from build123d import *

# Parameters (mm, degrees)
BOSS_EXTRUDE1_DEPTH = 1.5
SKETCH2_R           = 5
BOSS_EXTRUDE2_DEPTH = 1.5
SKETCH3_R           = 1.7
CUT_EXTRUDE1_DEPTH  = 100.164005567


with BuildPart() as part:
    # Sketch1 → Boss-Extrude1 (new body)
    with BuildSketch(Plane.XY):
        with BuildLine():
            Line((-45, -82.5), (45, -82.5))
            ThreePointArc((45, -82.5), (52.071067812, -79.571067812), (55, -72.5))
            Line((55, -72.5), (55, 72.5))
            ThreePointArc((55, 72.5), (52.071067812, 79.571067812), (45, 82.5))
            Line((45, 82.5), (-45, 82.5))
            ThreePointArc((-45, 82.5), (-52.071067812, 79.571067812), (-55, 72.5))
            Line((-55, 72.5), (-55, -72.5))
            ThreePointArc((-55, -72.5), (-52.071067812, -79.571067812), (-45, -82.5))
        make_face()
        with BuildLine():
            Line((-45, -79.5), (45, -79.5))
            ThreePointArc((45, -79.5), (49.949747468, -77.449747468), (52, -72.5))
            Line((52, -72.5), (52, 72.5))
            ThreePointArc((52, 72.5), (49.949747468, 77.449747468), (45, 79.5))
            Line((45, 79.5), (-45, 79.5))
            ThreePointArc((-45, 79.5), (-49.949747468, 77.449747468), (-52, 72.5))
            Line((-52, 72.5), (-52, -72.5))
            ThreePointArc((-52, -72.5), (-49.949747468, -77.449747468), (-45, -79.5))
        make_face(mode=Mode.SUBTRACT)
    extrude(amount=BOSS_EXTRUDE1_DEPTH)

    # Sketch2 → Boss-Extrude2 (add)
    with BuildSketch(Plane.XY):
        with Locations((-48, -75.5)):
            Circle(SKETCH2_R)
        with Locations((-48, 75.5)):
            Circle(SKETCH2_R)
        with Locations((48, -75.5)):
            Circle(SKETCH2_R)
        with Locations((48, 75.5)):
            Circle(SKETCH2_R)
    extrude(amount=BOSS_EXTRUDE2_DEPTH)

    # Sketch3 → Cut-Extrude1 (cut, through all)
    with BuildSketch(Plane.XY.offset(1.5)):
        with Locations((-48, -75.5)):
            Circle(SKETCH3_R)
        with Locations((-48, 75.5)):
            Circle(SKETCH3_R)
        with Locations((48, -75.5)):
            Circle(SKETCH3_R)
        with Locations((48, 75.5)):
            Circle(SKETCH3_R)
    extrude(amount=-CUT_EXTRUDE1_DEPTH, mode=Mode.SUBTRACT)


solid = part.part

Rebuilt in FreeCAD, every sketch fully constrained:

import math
import FreeCAD as App
import Part
import Sketcher

V = App.Vector
Q = App.Units.Quantity

doc = App.newDocument("Part")
body = doc.addObject("PartDesign::Body", "Body")

# Sketch on XY plane
sketch1 = doc.addObject("Sketcher::SketchObject", "Sketch")
body.addObject(sketch1)
sketch1.AttachmentSupport = (doc.XY_Plane, [""])
sketch1.MapMode = "FlatFace"
sketch1.addGeometry([
    Part.LineSegment(V(-45, -82.5, 0), V(45, -82.5, 0)),  # 0
    Part.ArcOfCircle(Part.Circle(V(45, -72.5, 0), V(0, 0, 1), 10), math.radians(-90), math.radians(0)),  # 1
    Part.LineSegment(V(55, -72.5, 0), V(55, 72.5, 0)),  # 2
    Part.ArcOfCircle(Part.Circle(V(45, 72.5, 0), V(0, 0, 1), 10), math.radians(0), math.radians(90)),  # 3
    Part.LineSegment(V(45, 82.5, 0), V(-45, 82.5, 0)),  # 4
    Part.ArcOfCircle(Part.Circle(V(-45, 72.5, 0), V(0, 0, 1), 10), math.radians(90), math.radians(180)),  # 5
    Part.LineSegment(V(-55, 72.5, 0), V(-55, -72.5, 0)),  # 6
    Part.ArcOfCircle(Part.Circle(V(-45, -72.5, 0), V(0, 0, 1), 10), math.radians(180), math.radians(270)),  # 7
    Part.LineSegment(V(45, -79.5, 0), V(-45, -79.5, 0)),  # 8
    Part.ArcOfCircle(Part.Circle(V(-45, -72.5, 0), V(0, 0, 1), 7), math.radians(-180), math.radians(-90)),  # 9
    Part.LineSegment(V(-52, -72.5, 0), V(-52, 72.5, 0)),  # 10
    Part.ArcOfCircle(Part.Circle(V(-45, 72.5, 0), V(0, 0, 1), 7), math.radians(90), math.radians(180)),  # 11
    Part.LineSegment(V(-45, 79.5, 0), V(45, 79.5, 0)),  # 12
    Part.ArcOfCircle(Part.Circle(V(45, 72.5, 0), V(0, 0, 1), 7), math.radians(0), math.radians(90)),  # 13
    Part.LineSegment(V(52, 72.5, 0), V(52, -72.5, 0)),  # 14
    Part.ArcOfCircle(Part.Circle(V(45, -72.5, 0), V(0, 0, 1), 7), math.radians(-90), math.radians(0)),  # 15
], False)
sketch1.addConstraint([
    Sketcher.Constraint("Tangent", 0, 2, 1, 1),
    Sketcher.Constraint("Tangent", 1, 2, 2, 1),
    Sketcher.Constraint("Tangent", 2, 2, 3, 1),
    Sketcher.Constraint("Tangent", 3, 2, 4, 1),
    Sketcher.Constraint("Tangent", 4, 2, 5, 1),
    Sketcher.Constraint("Tangent", 5, 2, 6, 1),
    Sketcher.Constraint("Tangent", 6, 2, 7, 1),
    Sketcher.Constraint("Tangent", 7, 2, 0, 1),
    Sketcher.Constraint("Tangent", 8, 2, 9, 2),
    Sketcher.Constraint("Tangent", 9, 1, 10, 1),
    Sketcher.Constraint("Tangent", 10, 2, 11, 2),
    Sketcher.Constraint("Tangent", 11, 1, 12, 1),
    Sketcher.Constraint("Tangent", 12, 2, 13, 2),
    Sketcher.Constraint("Tangent", 13, 1, 14, 1),
    Sketcher.Constraint("Tangent", 14, 2, 15, 2),
    Sketcher.Constraint("Tangent", 15, 1, 8, 1),
    Sketcher.Constraint("Horizontal", 0),
    Sketcher.Constraint("Vertical", 2),
    Sketcher.Constraint("Horizontal", 4),
    Sketcher.Constraint("Vertical", 6),
    Sketcher.Constraint("Horizontal", 8),
    Sketcher.Constraint("Vertical", 10),
    Sketcher.Constraint("Horizontal", 12),
    Sketcher.Constraint("Vertical", 14),
    Sketcher.Constraint("Coincident", 9, 3, 7, 3),
    Sketcher.Constraint("Coincident", 11, 3, 5, 3),
    Sketcher.Constraint("Coincident", 13, 3, 3, 3),
    Sketcher.Constraint("Equal", 1, 3),
    Sketcher.Constraint("Equal", 3, 5),
    Sketcher.Constraint("Equal", 5, 7),
    Sketcher.Constraint("Equal", 13, 15),
    Sketcher.Constraint("Symmetric", 1, 3, 5, 3, -1, 1),
    Sketcher.Constraint("Radius", 1, Q("10 mm")),
    Sketcher.Constraint("Radius", 9, Q("7 mm")),
    Sketcher.Constraint("DistanceX", 0, 1, 0, 2, Q("90 mm")),
    Sketcher.Constraint("DistanceY", 2, 1, 2, 2, Q("145 mm")),
])
pad1 = doc.addObject("PartDesign::Pad", "Pad")
body.addObject(pad1)
pad1.Profile = sketch1
pad1.Length = 1.5

# Sketch on XY plane
sketch2 = doc.addObject("Sketcher::SketchObject", "Sketch001")
body.addObject(sketch2)
sketch2.AttachmentSupport = (doc.XY_Plane, [""])
sketch2.MapMode = "FlatFace"
sketch2.addGeometry([
    Part.Circle(V(-48, -75.5, 0), V(0, 0, 1), 5),
    Part.Circle(V(-48, 75.5, 0), V(0, 0, 1), 5),
    Part.Circle(V(48, -75.5, 0), V(0, 0, 1), 5),
    Part.Circle(V(48, 75.5, 0), V(0, 0, 1), 5),
], False)
sketch2.addConstraint([
    Sketcher.Constraint("Equal", 0, 1),
    Sketcher.Constraint("Equal", 1, 2),
    Sketcher.Constraint("Equal", 2, 3),
    Sketcher.Constraint("Symmetric", 1, 3, 2, 3, -1, 1),
    Sketcher.Constraint("Symmetric", 0, 3, 3, 3, -1, 1),
    Sketcher.Constraint("Symmetric", 0, 3, 2, 3, -2),
    Sketcher.Constraint("Diameter", 0, Q("10 mm")),
    Sketcher.Constraint("DistanceX", 0, 3, -1, 1, Q("48 mm")),
    Sketcher.Constraint("DistanceY", 0, 3, 1, 3, Q("151 mm")),
])
pad2 = doc.addObject("PartDesign::Pad", "Pad001")
body.addObject(pad2)
pad2.Profile = sketch2
pad2.Length = 1.5

# Sketch on XY plane
sketch3 = doc.addObject("Sketcher::SketchObject", "Sketch002")
body.addObject(sketch3)
sketch3.AttachmentSupport = (doc.XY_Plane, [""])
sketch3.MapMode = "FlatFace"
sketch3.AttachmentOffset = App.Placement(V(0, 0, 1.5), App.Rotation())
sketch3.addGeometry([
    Part.Circle(V(-48, -75.5, 0), V(0, 0, 1), 1.7),
    Part.Circle(V(-48, 75.5, 0), V(0, 0, 1), 1.7),
    Part.Circle(V(48, -75.5, 0), V(0, 0, 1), 1.7),
    Part.Circle(V(48, 75.5, 0), V(0, 0, 1), 1.7),
], False)
sketch3.addConstraint([
    Sketcher.Constraint("Equal", 0, 1),
    Sketcher.Constraint("Equal", 1, 2),
    Sketcher.Constraint("Equal", 2, 3),
    Sketcher.Constraint("Symmetric", 1, 3, 2, 3, -1, 1),
    Sketcher.Constraint("Symmetric", 0, 3, 3, 3, -1, 1),
    Sketcher.Constraint("Symmetric", 0, 3, 2, 3, -2),
    Sketcher.Constraint("Diameter", 0, Q("3.4 mm")),
    Sketcher.Constraint("DistanceX", 0, 3, -1, 1, Q("48 mm")),
    Sketcher.Constraint("DistanceY", 0, 3, 1, 3, Q("151 mm")),
])
pocket1 = doc.addObject("PartDesign::Pocket", "Pocket")
body.addObject(pocket1)
pocket1.Profile = sketch3
pocket1.Type = "ThroughAll"

doc.recompute()
